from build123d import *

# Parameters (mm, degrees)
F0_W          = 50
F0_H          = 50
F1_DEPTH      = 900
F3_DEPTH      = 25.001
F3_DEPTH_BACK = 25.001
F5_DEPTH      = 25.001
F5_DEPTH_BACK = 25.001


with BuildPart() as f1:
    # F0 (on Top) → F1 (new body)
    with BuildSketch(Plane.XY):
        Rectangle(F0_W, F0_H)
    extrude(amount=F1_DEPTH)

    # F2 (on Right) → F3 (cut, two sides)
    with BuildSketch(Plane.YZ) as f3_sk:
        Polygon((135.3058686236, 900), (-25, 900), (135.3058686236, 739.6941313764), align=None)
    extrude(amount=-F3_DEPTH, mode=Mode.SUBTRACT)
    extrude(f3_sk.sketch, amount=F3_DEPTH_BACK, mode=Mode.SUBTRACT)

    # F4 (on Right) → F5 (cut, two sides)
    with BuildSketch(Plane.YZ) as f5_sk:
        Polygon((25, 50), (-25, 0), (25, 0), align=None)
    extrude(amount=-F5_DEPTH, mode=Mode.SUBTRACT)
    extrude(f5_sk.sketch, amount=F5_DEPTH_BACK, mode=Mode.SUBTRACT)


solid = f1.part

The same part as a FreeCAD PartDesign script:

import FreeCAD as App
import Part
import Sketcher

V = App.Vector

doc = App.newDocument("Part")
params = doc.addObject("Spreadsheet::Sheet", "Params")
for row, (alias, value) in enumerate([
    ("sketch1_width", "50 mm"),
    ("pad1_length", "900 mm"),
    ("sketch3_width", "50 mm"),
], start=1):
    params.set(f"A{row}", alias)
    params.set(f"B{row}", "=" + value)
    params.setAlias(f"B{row}", alias)

body = doc.addObject("PartDesign::Body", "Body")

# Sketch on XY plane
sketch1 = body.newObject("Sketcher::SketchObject", "Sketch")
sketch1.AttachmentSupport = (doc.getObject("XY_Plane"), [""])
sketch1.MapMode = "FlatFace"
sketch1.addGeometry([
    Part.LineSegment(V(-25, 25, 0), V(-25, -25, 0)),
    Part.LineSegment(V(-25, -25, 0), V(25, -25, 0)),
    Part.LineSegment(V(25, -25, 0), V(25, 25, 0)),
    Part.LineSegment(V(25, 25, 0), V(-25, 25, 0)),
], False)
sketch1.addConstraint([
    Sketcher.Constraint("Coincident", 0, 2, 1, 1),
    Sketcher.Constraint("Coincident", 1, 2, 2, 1),
    Sketcher.Constraint("Coincident", 2, 2, 3, 1),
    Sketcher.Constraint("Coincident", 3, 2, 0, 1),
    Sketcher.Constraint("Vertical", 0),
    Sketcher.Constraint("Horizontal", 1),
    Sketcher.Constraint("Vertical", 2),
    Sketcher.Constraint("Horizontal", 3),
    Sketcher.Constraint("Symmetric", 0, 2, 2, 2, -1, 1),
    Sketcher.Constraint("Equal", 3, 0),
    Sketcher.Constraint("DistanceX", 1, 1, 1, 2, 50.0),
])
sketch1.setExpression("Constraints[10]", "Params.sketch1_width")
pad1 = body.newObject("PartDesign::Pad", "Pad")
pad1.Profile = sketch1
pad1.setExpression("Length", "Params.pad1_length")

# Sketch on YZ plane
sketch2 = body.newObject("Sketcher::SketchObject", "Sketch001")
sketch2.AttachmentSupport = (doc.getObject("YZ_Plane"), [""])
sketch2.MapMode = "FlatFace"
sketch2.addGeometry([
    Part.LineSegment(V(135.305869, 900, 0), V(-25, 900, 0)),
    Part.LineSegment(V(-25, 900, 0), V(135.305869, 739.694131, 0)),
    Part.LineSegment(V(135.305869, 739.694131, 0), V(135.305869, 900, 0)),
], False)
sketch2.addConstraint([
    Sketcher.Constraint("Coincident", 0, 2, 1, 1),
    Sketcher.Constraint("Coincident", 1, 2, 2, 1),
    Sketcher.Constraint("Coincident", 2, 2, 0, 1),
    Sketcher.Constraint("Horizontal", 0),
    Sketcher.Constraint("Vertical", 2),
    Sketcher.Constraint("Equal", 0, 2),
    Sketcher.Constraint("DistanceX", 0, 2, -1, 1, 25.0),
    Sketcher.Constraint("DistanceY", -1, 1, 0, 2, 900.0),
    Sketcher.Constraint("DistanceX", 0, 2, 0, 1, 160.305869),
])
pocket1 = body.newObject("PartDesign::Pocket", "Pocket")
pocket1.Profile = sketch2
pocket1.Type = "ThroughAll"
pocket1.Midplane = True

# Sketch on YZ plane
sketch3 = body.newObject("Sketcher::SketchObject", "Sketch002")
sketch3.AttachmentSupport = (doc.getObject("YZ_Plane"), [""])
sketch3.MapMode = "FlatFace"
sketch3.addGeometry([
    Part.LineSegment(V(25, 50, 0), V(-25, 0, 0)),
    Part.LineSegment(V(-25, 0, 0), V(25, 0, 0)),
    Part.LineSegment(V(25, 0, 0), V(25, 50, 0)),
], False)
sketch3.addConstraint([
    Sketcher.Constraint("Coincident", 0, 2, 1, 1),
    Sketcher.Constraint("Coincident", 1, 2, 2, 1),
    Sketcher.Constraint("Coincident", 2, 2, 0, 1),
    Sketcher.Constraint("Horizontal", 1),
    Sketcher.Constraint("Vertical", 2),
    Sketcher.Constraint("Symmetric", 0, 2, 1, 2, -1, 1),
    Sketcher.Constraint("Equal", 1, 2),
    Sketcher.Constraint("DistanceX", 1, 1, 1, 2, 50.0),
])
sketch3.setExpression("Constraints[7]", "Params.sketch3_width")
pocket2 = body.newObject("PartDesign::Pocket", "Pocket001")
pocket2.Profile = sketch3
pocket2.Type = "ThroughAll"
pocket2.Midplane = True

doc.recompute()
